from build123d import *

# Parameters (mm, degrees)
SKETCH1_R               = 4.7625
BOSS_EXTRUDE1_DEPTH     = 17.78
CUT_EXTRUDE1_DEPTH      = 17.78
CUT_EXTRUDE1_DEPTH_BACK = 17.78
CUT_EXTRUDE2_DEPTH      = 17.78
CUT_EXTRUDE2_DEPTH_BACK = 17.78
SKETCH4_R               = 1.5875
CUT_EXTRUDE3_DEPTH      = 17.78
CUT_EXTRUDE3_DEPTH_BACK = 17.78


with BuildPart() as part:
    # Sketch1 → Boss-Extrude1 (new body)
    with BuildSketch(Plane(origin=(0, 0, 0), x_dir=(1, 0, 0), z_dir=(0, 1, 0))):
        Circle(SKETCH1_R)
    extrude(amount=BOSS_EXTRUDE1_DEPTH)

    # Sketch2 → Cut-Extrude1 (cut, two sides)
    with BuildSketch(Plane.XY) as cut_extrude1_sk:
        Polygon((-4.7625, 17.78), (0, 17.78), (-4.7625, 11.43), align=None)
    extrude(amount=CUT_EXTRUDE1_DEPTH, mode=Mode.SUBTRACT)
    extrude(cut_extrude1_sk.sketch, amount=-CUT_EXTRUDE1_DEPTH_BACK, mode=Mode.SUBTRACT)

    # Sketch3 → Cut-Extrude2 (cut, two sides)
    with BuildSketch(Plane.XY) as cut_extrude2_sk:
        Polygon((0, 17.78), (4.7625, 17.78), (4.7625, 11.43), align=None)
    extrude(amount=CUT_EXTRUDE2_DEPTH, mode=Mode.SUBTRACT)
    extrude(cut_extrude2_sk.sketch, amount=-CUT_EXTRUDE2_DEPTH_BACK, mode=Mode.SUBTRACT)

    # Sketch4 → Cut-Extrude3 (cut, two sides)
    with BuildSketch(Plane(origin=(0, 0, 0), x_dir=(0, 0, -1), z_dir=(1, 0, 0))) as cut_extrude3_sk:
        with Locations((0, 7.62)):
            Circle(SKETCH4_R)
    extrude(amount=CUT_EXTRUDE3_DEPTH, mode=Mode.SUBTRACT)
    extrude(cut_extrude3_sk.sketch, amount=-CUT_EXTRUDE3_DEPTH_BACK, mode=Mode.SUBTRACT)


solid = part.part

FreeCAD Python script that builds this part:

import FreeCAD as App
import Part
import Sketcher
Q = App.Units.Quantity


def add_polygon(sketch, points):
    """Adds a closed chain of lines whose ends are joined by coincident constraints."""
    first, n = sketch.GeometryCount, len(points)
    for a, b in zip(points, points[1:] + points[:1]):
        sketch.addGeometry(Part.LineSegment(App.Vector(*a, 0), App.Vector(*b, 0)), False)
    for i in range(n):
        sketch.addConstraint(Sketcher.Constraint("Coincident", first + i, 2, first + (i + 1) % n, 1))

doc = App.newDocument("Part")
body = doc.addObject("PartDesign::Body", "Body")

sketch1 = body.newObject("Sketcher::SketchObject", "Sketch")
sketch1.AttachmentSupport = (doc.getObject("XZ_Plane"), [""])
sketch1.MapMode = "FlatFace"
sketch1.addGeometry(Part.Circle(App.Vector(0, 0, 0), App.Vector(0, 0, 1), 4.7625), False)
sketch1.addConstraint([
    Sketcher.Constraint("Coincident", 0, 3, -1, 1),
    Sketcher.Constraint("Diameter", 0, Q("0.375 in")),
])
pad1 = body.newObject("PartDesign::Pad", "Pad")
pad1.Profile = sketch1
pad1.Length = Q("0.7 in")
pad1.Reversed = True

sketch2 = body.newObject("Sketcher::SketchObject", "Sketch001")
sketch2.AttachmentSupport = (doc.getObject("XY_Plane"), [""])
sketch2.MapMode = "FlatFace"
add_polygon(sketch2, [(0, 17.78), (-4.7625, 17.78), (-4.7625, 11.43)])
sketch2.addConstraint([
    Sketcher.Constraint("Horizontal", 0),
    Sketcher.Constraint("Vertical", 1),
    Sketcher.Constraint("PointOnObject", 2, 2, -2),
    Sketcher.Constraint("DistanceY", 1, 2, 1, 1, Q("0.25 in")),
    Sketcher.Constraint("DistanceY", -1, 1, 0, 2, Q("0.7 in")),
    Sketcher.Constraint("DistanceX", 0, 2, 0, 1, Q("0.1875 in")),
])
pocket1 = body.newObject("PartDesign::Pocket", "Pocket")
pocket1.Profile = sketch2
pocket1.Type = "ThroughAll"
pocket1.Midplane = True

sketch3 = body.newObject("Sketcher::SketchObject", "Sketch002")
sketch3.AttachmentSupport = (doc.getObject("XY_Plane"), [""])
sketch3.MapMode = "FlatFace"
add_polygon(sketch3, [(4.7625, 17.78), (0, 17.78), (4.7625, 11.43)])
sketch3.addConstraint([
    Sketcher.Constraint("Horizontal", 0),
    Sketcher.Constraint("Vertical", 2),
    Sketcher.Constraint("PointOnObject", 0, 2, -2),
    Sketcher.Constraint("DistanceY", 2, 1, 2, 2, Q("0.25 in")),
    Sketcher.Constraint("DistanceY", -1, 1, 0, 2, Q("0.7 in")),
    Sketcher.Constraint("DistanceX", 0, 2, 0, 1, Q("0.1875 in")),
])
pocket2 = body.newObject("PartDesign::Pocket", "Pocket001")
pocket2.Profile = sketch3
pocket2.Type = "ThroughAll"
pocket2.Midplane = True

sketch4 = body.newObject("Sketcher::SketchObject", "Sketch003")
sketch4.AttachmentSupport = (doc.getObject("YZ_Plane"), [""])
sketch4.MapMode = "FlatFace"
sketch4.addGeometry(Part.Circle(App.Vector(7.62, 0, 0), App.Vector(0, 0, 1), 1.5875), False)
sketch4.addConstraint([
    Sketcher.Constraint("PointOnObject", 0, 3, -1),
    Sketcher.Constraint("Diameter", 0, Q("0.125 in")),
    Sketcher.Constraint("DistanceX", -1, 1, 0, 3, Q("0.3 in")),
])
pocket3 = body.newObject("PartDesign::Pocket", "Pocket002")
pocket3.Profile = sketch4
pocket3.Type = "ThroughAll"
pocket3.Midplane = True

doc.recompute()
